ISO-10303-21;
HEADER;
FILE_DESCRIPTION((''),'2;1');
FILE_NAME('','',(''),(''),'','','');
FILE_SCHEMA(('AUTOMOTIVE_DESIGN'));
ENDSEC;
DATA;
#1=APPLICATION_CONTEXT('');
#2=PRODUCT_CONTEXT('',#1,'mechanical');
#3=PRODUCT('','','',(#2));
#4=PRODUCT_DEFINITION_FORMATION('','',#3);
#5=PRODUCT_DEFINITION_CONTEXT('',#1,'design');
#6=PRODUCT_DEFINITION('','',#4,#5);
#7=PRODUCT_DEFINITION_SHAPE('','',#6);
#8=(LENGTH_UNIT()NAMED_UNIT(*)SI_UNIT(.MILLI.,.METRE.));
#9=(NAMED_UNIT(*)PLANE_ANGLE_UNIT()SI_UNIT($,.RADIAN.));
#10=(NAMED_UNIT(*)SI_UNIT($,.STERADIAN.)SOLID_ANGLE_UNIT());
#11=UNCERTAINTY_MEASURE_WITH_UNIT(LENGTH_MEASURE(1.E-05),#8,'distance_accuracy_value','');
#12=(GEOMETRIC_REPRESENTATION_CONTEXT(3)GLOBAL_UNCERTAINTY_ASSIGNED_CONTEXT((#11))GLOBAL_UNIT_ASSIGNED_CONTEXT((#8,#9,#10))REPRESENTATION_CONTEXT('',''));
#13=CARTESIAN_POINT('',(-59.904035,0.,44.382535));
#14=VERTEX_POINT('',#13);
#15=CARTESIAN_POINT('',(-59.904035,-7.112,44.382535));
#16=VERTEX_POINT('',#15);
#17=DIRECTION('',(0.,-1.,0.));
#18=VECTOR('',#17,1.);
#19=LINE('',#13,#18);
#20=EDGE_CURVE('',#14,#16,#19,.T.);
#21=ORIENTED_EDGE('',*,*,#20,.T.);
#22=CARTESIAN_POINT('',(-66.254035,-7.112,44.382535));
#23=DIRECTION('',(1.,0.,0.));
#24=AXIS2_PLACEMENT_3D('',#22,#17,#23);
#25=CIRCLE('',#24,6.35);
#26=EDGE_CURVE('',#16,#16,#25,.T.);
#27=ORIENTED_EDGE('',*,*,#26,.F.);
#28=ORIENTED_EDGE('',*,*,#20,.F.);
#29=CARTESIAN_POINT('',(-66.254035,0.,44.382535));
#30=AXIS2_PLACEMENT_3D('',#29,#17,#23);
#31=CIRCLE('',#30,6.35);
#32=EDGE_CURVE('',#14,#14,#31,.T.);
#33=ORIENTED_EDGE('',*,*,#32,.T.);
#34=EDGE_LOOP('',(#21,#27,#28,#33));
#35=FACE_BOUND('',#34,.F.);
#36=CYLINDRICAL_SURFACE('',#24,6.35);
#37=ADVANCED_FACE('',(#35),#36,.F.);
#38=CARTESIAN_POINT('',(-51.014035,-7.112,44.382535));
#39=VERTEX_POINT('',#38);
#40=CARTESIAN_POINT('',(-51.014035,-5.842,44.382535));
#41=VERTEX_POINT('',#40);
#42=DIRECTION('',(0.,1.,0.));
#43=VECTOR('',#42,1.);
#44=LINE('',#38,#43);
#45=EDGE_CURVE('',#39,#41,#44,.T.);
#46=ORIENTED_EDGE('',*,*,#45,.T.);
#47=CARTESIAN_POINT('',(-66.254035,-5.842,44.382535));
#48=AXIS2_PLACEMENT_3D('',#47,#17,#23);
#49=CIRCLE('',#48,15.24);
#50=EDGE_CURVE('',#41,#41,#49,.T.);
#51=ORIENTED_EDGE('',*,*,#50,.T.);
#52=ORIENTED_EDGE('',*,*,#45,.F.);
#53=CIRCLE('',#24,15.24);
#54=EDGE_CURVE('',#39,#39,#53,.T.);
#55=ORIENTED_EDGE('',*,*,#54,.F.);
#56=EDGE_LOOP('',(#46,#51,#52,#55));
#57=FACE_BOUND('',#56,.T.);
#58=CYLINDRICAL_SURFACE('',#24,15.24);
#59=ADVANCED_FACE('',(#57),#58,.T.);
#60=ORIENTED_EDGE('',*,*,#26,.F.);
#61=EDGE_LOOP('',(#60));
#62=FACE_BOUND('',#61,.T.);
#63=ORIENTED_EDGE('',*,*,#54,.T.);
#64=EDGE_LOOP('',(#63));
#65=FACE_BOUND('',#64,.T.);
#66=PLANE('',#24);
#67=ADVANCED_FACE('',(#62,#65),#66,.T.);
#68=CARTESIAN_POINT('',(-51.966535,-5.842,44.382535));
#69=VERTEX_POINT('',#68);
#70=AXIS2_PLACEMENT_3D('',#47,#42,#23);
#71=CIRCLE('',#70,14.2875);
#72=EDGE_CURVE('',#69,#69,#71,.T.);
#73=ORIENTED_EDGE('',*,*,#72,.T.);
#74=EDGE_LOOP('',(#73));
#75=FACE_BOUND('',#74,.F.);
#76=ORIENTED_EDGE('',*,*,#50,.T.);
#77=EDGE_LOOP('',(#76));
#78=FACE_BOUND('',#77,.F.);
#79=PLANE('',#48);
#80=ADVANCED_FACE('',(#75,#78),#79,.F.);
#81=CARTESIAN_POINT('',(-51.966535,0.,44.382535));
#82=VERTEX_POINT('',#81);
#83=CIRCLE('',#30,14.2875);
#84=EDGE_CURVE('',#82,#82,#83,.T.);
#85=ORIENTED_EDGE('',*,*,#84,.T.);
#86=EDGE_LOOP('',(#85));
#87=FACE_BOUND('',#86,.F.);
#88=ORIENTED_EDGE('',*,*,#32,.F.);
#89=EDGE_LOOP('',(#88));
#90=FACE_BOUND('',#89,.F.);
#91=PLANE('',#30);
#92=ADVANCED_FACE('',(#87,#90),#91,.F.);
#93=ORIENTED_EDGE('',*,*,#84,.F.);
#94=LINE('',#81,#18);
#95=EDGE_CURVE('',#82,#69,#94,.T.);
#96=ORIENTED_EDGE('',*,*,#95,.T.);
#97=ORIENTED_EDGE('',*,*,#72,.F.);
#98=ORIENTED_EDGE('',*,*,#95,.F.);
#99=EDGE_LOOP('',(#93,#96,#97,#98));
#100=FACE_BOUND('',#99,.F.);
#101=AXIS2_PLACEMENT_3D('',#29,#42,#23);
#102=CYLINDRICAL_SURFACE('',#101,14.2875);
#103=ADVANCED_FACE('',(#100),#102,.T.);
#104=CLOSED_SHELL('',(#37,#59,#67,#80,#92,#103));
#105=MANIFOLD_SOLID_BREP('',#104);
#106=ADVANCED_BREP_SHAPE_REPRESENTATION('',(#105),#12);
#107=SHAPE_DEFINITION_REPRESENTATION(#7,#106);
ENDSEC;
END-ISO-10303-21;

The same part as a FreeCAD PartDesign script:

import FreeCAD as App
import Part
import Sketcher
Q = App.Units.Quantity

doc = App.newDocument("Part")
params = doc.addObject("Spreadsheet::Sheet", "Params")
for row, (alias, value) in enumerate([
    ("sketch1_diameter", "0.5 in"),
    ("sketch1_diameter2", "1.125 in"),
    ("pad1_length", "0.28 in"),
    ("sketch2_diameter", "1.2 in"),
    ("pad2_length", "0.05 in"),
    ("sketch3_diameter", "0.5 in"),
    ("pocket1_length", "1 in"),
], start=1):
    params.set(f"A{row}", alias)
    params.set(f"B{row}", "=" + value)
    params.setAlias(f"B{row}", alias)

body = doc.addObject("PartDesign::Body", "Body")

sketch1 = doc.addObject("Sketcher::SketchObject", "Sketch")
body.addObject(sketch1)
sketch1.AttachmentSupport = (doc.XZ_Plane, [""])
sketch1.MapMode = "FlatFace"
sketch1.addGeometry(Part.Circle(App.Vector(-66.254035, 44.382535, 0), App.Vector(0, 0, 1), 14.2875), False)
sketch1.addGeometry(Part.Circle(App.Vector(-66.254035, 44.382535, 0), App.Vector(0, 0, 1), 6.35), False)
sketch1.addConstraint(Sketcher.Constraint("Coincident", 1, 3, 0, 3))
sketch1.addConstraint(Sketcher.Constraint("Diameter", 1, Q("0.5 in")))
sketch1.addConstraint(Sketcher.Constraint("Diameter", 0, Q("1.125 in")))
sketch1.addConstraint(Sketcher.Constraint("DistanceX", 0, 3, -1, 1, Q("66.254035 mm")))
sketch1.addConstraint(Sketcher.Constraint("DistanceY", -1, 1, 0, 3, Q("44.382535 mm")))
sketch1.setExpression("Constraints[1]", "Params.sketch1_diameter")
sketch1.setExpression("Constraints[2]", "Params.sketch1_diameter2")
pad1 = doc.addObject("PartDesign::Pad", "Pad")
body.addObject(pad1)
pad1.Profile = sketch1
pad1.setExpression("Length", "Params.pad1_length")

sketch2 = doc.addObject("Sketcher::SketchObject", "Sketch001")
body.addObject(sketch2)
sketch2.AttachmentSupport = (doc.XZ_Plane, [""])
sketch2.MapMode = "FlatFace"
sketch2.AttachmentOffset = App.Placement(App.Vector(0, 0, 0.28 * 25.4), App.Rotation())
sketch2.addGeometry(Part.Circle(App.Vector(-66.254035, 44.382535, 0), App.Vector(0, 0, 1), 15.24), False)
sketch2.addConstraint(Sketcher.Constraint("Diameter", 0, Q("1.2 in")))
sketch2.addConstraint(Sketcher.Constraint("DistanceX", 0, 3, -1, 1, Q("66.254035 mm")))
sketch2.addConstraint(Sketcher.Constraint("DistanceY", -1, 1, 0, 3, Q("44.382535 mm")))
sketch2.setExpression("Constraints[0]", "Params.sketch2_diameter")
pad2 = doc.addObject("PartDesign::Pad", "Pad001")
body.addObject(pad2)
pad2.Profile = sketch2
pad2.setExpression("Length", "Params.pad2_length")
pad2.Reversed = True

sketch3 = doc.addObject("Sketcher::SketchObject", "Sketch002")
body.addObject(sketch3)
sketch3.AttachmentSupport = (doc.XZ_Plane, [""])
sketch3.MapMode = "FlatFace"
sketch3.AttachmentOffset = App.Placement(App.Vector(0, 0, 0.28 * 25.4), App.Rotation())
sketch3.addGeometry(Part.Circle(App.Vector(-66.254035, 44.382535, 0), App.Vector(0, 0, 1), 6.35), False)
sketch3.addConstraint(Sketcher.Constraint("Diameter", 0, Q("0.5 in")))
sketch3.addConstraint(Sketcher.Constraint("DistanceX", 0, 3, -1, 1, Q("66.254035 mm")))
sketch3.addConstraint(Sketcher.Constraint("DistanceY", -1, 1, 0, 3, Q("44.382535 mm")))
sketch3.setExpression("Constraints[0]", "Params.sketch3_diameter")
pocket1 = doc.addObject("PartDesign::Pocket", "Pocket")
body.addObject(pocket1)
pocket1.Profile = sketch3
pocket1.setExpression("Length", "Params.pocket1_length")

doc.recompute()
